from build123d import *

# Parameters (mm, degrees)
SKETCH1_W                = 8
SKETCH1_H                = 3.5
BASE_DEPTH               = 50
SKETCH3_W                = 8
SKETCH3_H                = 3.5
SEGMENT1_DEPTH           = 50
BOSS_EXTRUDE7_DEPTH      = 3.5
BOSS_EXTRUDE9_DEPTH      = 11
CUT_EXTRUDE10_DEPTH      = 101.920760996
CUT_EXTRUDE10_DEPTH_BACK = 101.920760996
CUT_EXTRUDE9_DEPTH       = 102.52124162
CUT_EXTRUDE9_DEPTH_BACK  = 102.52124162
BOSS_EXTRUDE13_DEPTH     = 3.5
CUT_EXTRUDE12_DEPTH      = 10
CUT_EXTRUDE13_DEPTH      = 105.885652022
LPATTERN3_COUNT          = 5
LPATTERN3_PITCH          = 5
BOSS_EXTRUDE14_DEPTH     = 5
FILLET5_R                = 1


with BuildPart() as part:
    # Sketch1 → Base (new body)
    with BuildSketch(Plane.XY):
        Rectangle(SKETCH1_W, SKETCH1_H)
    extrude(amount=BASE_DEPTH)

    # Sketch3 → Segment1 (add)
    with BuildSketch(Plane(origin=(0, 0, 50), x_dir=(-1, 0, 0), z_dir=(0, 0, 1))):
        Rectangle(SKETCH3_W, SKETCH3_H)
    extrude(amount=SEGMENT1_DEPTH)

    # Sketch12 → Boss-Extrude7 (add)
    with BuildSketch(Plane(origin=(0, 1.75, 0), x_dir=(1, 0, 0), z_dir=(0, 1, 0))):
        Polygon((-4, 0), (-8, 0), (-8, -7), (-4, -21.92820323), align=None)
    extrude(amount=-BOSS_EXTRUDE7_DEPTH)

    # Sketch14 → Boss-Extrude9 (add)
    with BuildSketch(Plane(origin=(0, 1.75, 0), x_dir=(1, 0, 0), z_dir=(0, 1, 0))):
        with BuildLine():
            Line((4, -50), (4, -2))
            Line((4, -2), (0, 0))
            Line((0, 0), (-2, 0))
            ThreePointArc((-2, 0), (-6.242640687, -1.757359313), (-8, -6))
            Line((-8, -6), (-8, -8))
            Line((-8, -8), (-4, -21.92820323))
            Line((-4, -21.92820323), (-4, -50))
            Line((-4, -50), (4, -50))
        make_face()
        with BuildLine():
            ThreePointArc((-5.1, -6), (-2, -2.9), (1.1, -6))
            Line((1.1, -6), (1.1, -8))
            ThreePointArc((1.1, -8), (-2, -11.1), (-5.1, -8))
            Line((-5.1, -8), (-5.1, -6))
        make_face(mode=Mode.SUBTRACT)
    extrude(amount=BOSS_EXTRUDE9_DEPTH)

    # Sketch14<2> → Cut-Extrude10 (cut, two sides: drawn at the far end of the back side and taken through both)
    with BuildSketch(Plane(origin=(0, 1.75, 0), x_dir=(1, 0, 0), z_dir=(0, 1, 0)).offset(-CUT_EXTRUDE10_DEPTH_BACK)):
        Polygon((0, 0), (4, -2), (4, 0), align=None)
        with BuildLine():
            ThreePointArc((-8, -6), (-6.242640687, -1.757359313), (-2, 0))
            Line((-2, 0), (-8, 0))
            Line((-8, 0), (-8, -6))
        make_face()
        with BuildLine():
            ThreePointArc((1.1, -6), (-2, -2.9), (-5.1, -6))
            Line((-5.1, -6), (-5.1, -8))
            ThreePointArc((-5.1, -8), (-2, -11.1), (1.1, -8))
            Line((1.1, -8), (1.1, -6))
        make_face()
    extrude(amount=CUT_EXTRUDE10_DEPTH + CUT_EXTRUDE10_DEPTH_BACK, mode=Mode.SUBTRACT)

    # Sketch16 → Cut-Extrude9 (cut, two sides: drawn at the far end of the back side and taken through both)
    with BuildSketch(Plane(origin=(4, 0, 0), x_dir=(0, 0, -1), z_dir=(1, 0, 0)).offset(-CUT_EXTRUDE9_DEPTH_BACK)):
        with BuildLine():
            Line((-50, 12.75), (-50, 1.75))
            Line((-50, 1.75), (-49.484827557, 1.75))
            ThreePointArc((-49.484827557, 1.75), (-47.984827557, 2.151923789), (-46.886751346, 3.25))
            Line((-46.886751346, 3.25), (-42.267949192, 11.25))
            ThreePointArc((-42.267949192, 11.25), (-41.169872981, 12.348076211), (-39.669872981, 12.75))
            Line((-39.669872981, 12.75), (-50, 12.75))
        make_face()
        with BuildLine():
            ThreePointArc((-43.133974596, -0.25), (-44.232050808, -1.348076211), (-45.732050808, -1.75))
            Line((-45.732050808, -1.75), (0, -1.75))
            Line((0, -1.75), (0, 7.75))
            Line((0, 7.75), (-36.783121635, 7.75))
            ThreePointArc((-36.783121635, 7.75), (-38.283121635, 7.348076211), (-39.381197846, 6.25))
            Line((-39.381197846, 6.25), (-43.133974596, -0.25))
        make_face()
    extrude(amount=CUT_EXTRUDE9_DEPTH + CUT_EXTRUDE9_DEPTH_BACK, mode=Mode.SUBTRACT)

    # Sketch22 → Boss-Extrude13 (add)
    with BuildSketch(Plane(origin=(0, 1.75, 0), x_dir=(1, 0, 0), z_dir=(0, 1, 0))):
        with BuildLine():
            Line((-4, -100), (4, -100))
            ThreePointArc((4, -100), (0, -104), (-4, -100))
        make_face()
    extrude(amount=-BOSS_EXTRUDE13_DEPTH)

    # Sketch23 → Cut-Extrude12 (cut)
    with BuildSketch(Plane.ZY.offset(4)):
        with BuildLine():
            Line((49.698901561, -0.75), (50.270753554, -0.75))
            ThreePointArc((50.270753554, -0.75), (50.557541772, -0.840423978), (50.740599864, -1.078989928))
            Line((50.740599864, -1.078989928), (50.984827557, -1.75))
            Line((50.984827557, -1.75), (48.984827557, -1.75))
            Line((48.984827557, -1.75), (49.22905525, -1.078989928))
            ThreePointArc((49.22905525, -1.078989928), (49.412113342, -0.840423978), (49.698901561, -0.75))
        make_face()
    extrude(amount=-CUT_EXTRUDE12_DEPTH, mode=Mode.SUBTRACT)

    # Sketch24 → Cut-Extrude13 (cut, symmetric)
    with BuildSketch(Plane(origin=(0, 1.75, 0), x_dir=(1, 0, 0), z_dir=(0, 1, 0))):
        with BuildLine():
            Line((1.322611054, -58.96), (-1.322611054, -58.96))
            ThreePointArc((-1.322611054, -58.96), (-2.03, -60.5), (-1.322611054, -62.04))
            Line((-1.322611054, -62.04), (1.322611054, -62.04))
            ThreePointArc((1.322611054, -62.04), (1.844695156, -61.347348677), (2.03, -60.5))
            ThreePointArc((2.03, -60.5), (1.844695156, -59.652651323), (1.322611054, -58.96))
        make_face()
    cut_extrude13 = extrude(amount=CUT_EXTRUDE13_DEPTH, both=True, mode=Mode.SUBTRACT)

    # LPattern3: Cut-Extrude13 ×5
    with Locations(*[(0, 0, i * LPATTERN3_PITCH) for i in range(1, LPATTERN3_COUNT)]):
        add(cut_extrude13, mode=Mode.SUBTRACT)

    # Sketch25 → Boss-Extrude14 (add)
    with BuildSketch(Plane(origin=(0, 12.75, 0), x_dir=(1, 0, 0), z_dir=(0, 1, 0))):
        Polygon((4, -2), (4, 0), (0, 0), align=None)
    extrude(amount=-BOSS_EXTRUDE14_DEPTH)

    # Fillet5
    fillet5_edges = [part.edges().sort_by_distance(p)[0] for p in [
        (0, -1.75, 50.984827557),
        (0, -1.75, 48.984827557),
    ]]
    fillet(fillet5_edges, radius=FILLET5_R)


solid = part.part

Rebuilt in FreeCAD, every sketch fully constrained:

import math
import FreeCAD as App
import Part
import Sketcher
from FreeCAD import Vector
Q = App.Units.Quantity


def edges_at(feature, points):
    """Names of the edges that pass closest to the given points."""
    edges = feature.Shape.Edges
    near = lambda p: min(range(len(edges)), key=lambda i: edges[i].distToShape(Part.Vertex(*p))[0])
    return sorted({f"Edge{near(p) + 1}" for p in points})


def add_polygon(sketch, points):
    """Adds a closed chain of lines whose ends are joined by coincident constraints."""
    first, n = sketch.GeometryCount, len(points)
    for a, b in zip(points, points[1:] + points[:1]):
        sketch.addGeometry(Part.LineSegment(App.Vector(*a, 0), App.Vector(*b, 0)), False)
    for i in range(n):
        sketch.addConstraint(Sketcher.Constraint("Coincident", first + i, 2, first + (i + 1) % n, 1))

doc = App.newDocument("Part")
body = doc.addObject("PartDesign::Body", "Body")

# Sketch on XY plane
sketch1 = body.newObject("Sketcher::SketchObject", "Sketch")
sketch1.AttachmentSupport = (doc.getObject("XY_Plane"), [""])
sketch1.MapMode = "FlatFace"
add_polygon(sketch1, [(-4, 1.8), (-4, -1.8), (4, -1.8), (4, 1.8)])  # lines 0-3
sketch1.addConstraint(Sketcher.Constraint("Vertical", 0))
sketch1.addConstraint(Sketcher.Constraint("Horizontal", 1))
sketch1.addConstraint(Sketcher.Constraint("Vertical", 2))
sketch1.addConstraint(Sketcher.Constraint("Horizontal", 3))
sketch1.addConstraint(Sketcher.Constraint("Symmetric", 0, 2, 2, 2, -1, 1))
sketch1.addConstraint(Sketcher.Constraint("DistanceX", 1, 1, 1, 2, 8.0))
sketch1.addConstraint(Sketcher.Constraint("DistanceY", 0, 2, 0, 1, 3.5))
pad1 = body.newObject("PartDesign::Pad", "Pad")
pad1.Profile = sketch1
pad1.Length = 50

# Sketch on XY plane
sketch2 = body.newObject("Sketcher::SketchObject", "Sketch001")
sketch2.AttachmentSupport = (doc.getObject("XY_Plane"), [""])
sketch2.MapMode = "FlatFace"
sketch2.AttachmentOffset = App.Placement(Vector(0, 0, 50), App.Rotation())
add_polygon(sketch2, [(4, -1.8), (4, 1.8), (-4, 1.8), (-4, -1.8)])  # lines 0-3
sketch2.addConstraint(Sketcher.Constraint("Vertical", 0))
sketch2.addConstraint(Sketcher.Constraint("Horizontal", 1))
sketch2.addConstraint(Sketcher.Constraint("Vertical", 2))
sketch2.addConstraint(Sketcher.Constraint("Horizontal", 3))
sketch2.addConstraint(Sketcher.Constraint("Symmetric", 0, 2, 2, 2, -1, 1))
sketch2.addConstraint(Sketcher.Constraint("DistanceX", 1, 2, 1, 1, 8.0))
sketch2.addConstraint(Sketcher.Constraint("DistanceY", 0, 1, 0, 2, 3.5))
pad2 = body.newObject("PartDesign::Pad", "Pad001")
pad2.Profile = sketch2
pad2.Length = 50

# Sketch on XZ plane
sketch3 = body.newObject("Sketcher::SketchObject", "Sketch002")
sketch3.AttachmentSupport = (doc.getObject("XZ_Plane"), [""])
sketch3.MapMode = "FlatFace"
sketch3.AttachmentOffset = App.Placement(Vector(0, 0, -1.75), App.Rotation())
add_polygon(sketch3, [(-4, 0), (-8, 0), (-8, 7), (-4, 21.9)])  # lines 0-3
sketch3.addConstraint(Sketcher.Constraint("Horizontal", 0))
sketch3.addConstraint(Sketcher.Constraint("Vertical", 1))
sketch3.addConstraint(Sketcher.Constraint("Vertical", 3))
sketch3.addConstraint(Sketcher.Constraint("PointOnObject", 0, 2, -1))
sketch3.addConstraint(Sketcher.Constraint("DistanceX", 0, 2, 0, 1, 4.0))
sketch3.addConstraint(Sketcher.Constraint("DistanceY", 1, 1, 1, 2, 7.0))
sketch3.addConstraint(Sketcher.Constraint("Angle", 2, Q("75 deg")))
sketch3.addConstraint(Sketcher.Constraint("DistanceX", 0, 2, -1, 1, 8.0))
pad3 = body.newObject("PartDesign::Pad", "Pad002")
pad3.Profile = sketch3
pad3.Length = 3.5

# Sketch on XZ plane
sketch4 = body.newObject("Sketcher::SketchObject", "Sketch003")
sketch4.AttachmentSupport = (doc.getObject("XZ_Plane"), [""])
sketch4.MapMode = "FlatFace"
sketch4.AttachmentOffset = App.Placement(Vector(0, 0, -1.75), App.Rotation())
sketch4.addGeometry(Part.LineSegment(Vector(4, 50, 0), Vector(4, 2, 0)), False)
sketch4.addGeometry(Part.LineSegment(Vector(4, 2, 0), Vector(0, 0, 0)), False)
sketch4.addGeometry(Part.LineSegment(Vector(0, 0, 0), Vector(-2, 0, 0)), False)
sketch4.addGeometry(Part.ArcOfCircle(Part.Circle(Vector(-2, 6, 0), Vector(0, 0, 1), 6), math.radians(180), math.radians(270)), False)
sketch4.addGeometry(Part.LineSegment(Vector(-8, 6, 0), Vector(-8, 8, 0)), False)
sketch4.addGeometry(Part.LineSegment(Vector(-8, 8, 0), Vector(-4, 21.9, 0)), False)
sketch4.addGeometry(Part.LineSegment(Vector(-4, 21.9, 0), Vector(-4, 50, 0)), False)
sketch4.addGeometry(Part.LineSegment(Vector(-4, 50, 0), Vector(4, 50, 0)), False)
sketch4.addGeometry(Part.LineSegment(Vector(-5.1, 8, 0), Vector(-5.1, 6, 0)), False)
sketch4.addGeometry(Part.ArcOfCircle(Part.Circle(Vector(-2, 6, 0), Vector(0, 0, 1), 3.1), math.radians(180), math.radians(360)), False)
sketch4.addGeometry(Part.LineSegment(Vector(1.1, 6, 0), Vector(1.1, 8, 0)), False)
sketch4.addGeometry(Part.ArcOfCircle(Part.Circle(Vector(-2, 8, 0), Vector(0, 0, 1), 3.1), math.radians(0), math.radians(180)), False)
sketch4.addConstraint(Sketcher.Constraint("Coincident", 0, 2, 1, 1))
sketch4.addConstraint(Sketcher.Constraint("Coincident", 1, 2, 2, 1))
sketch4.addConstraint(Sketcher.Constraint("Tangent", 2, 2, 3, 2))
sketch4.addConstraint(Sketcher.Constraint("Tangent", 3, 1, 4, 1))
sketch4.addConstraint(Sketcher.Constraint("Coincident", 4, 2, 5, 1))
sketch4.addConstraint(Sketcher.Constraint("Coincident", 5, 2, 6, 1))
sketch4.addConstraint(Sketcher.Constraint("Coincident", 6, 2, 7, 1))
sketch4.addConstraint(Sketcher.Constraint("Coincident", 7, 2, 0, 1))
sketch4.addConstraint(Sketcher.Constraint("Tangent", 8, 2, 9, 1))
sketch4.addConstraint(Sketcher.Constraint("Tangent", 9, 2, 10, 1))
sketch4.addConstraint(Sketcher.Constraint("Tangent", 10, 2, 11, 1))
sketch4.addConstraint(Sketcher.Constraint("Tangent", 11, 2, 8, 1))
sketch4.addConstraint(Sketcher.Constraint("Vertical", 0))
sketch4.addConstraint(Sketcher.Constraint("Horizontal", 2))
sketch4.addConstraint(Sketcher.Constraint("Vertical", 4))
sketch4.addConstraint(Sketcher.Constraint("Vertical", 6))
sketch4.addConstraint(Sketcher.Constraint("Horizontal", 7))
sketch4.addConstraint(Sketcher.Constraint("Vertical", 8))
sketch4.addConstraint(Sketcher.Constraint("Vertical", 10))
sketch4.addConstraint(Sketcher.Constraint("Coincident", 1, 2, -1, 1))
sketch4.addConstraint(Sketcher.Constraint("Coincident", 9, 3, 3, 3))
sketch4.addConstraint(Sketcher.Constraint("Horizontal", 11, 3, 4, 2))
sketch4.addConstraint(Sketcher.Constraint("Equal", 2, 4))
sketch4.addConstraint(Sketcher.Constraint("Radius", 3, 6.0))
sketch4.addConstraint(Sketcher.Constraint("Radius", 9, 3.1))
sketch4.addConstraint(Sketcher.Constraint("DistanceX", 2, 2, 2, 1, 2.0))
sketch4.addConstraint(Sketcher.Constraint("DistanceX", 7, 1, 7, 2, 8.0))
sketch4.addConstraint(Sketcher.Constraint("DistanceY", 0, 2, 0, 1, 48.0))
sketch4.addConstraint(Sketcher.Constraint("DistanceX", -1, 1, 0, 2, 4.0))
sketch4.addConstraint(Sketcher.Constraint("DistanceY", -1, 1, 0, 2, 2.0))
sketch4.addConstraint(Sketcher.Constraint("Distance", 5, 14.491199))
pad4 = body.newObject("PartDesign::Pad", "Pad003")
pad4.Profile = sketch4
pad4.Length = 11
pad4.Reversed = True

# Sketch on XZ plane
sketch5 = body.newObject("Sketcher::SketchObject", "Sketch004")
sketch5.AttachmentSupport = (doc.getObject("XZ_Plane"), [""])
sketch5.MapMode = "FlatFace"
sketch5.AttachmentOffset = App.Placement(Vector(0, 0, -1.75), App.Rotation())
add_polygon(sketch5, [(0, 0), (4, 2), (4, 0)])  # lines 0-2
sketch5.addGeometry(Part.ArcOfCircle(Part.Circle(Vector(-2, 6, 0), Vector(0, 0, 1), 6), math.radians(180), math.radians(270)), False)  # 3
sketch5.addGeometry(Part.LineSegment(Vector(-2, 0, 0), Vector(-8, 0, 0)), False)  # 4
sketch5.addGeometry(Part.LineSegment(Vector(-8, 0, 0), Vector(-8, 6, 0)), False)  # 5
sketch5.addGeometry(Part.ArcOfCircle(Part.Circle(Vector(-2, 6, 0), Vector(0, 0, 1), 3.1), math.radians(180), math.radians(360)), False)  # 6
sketch5.addGeometry(Part.LineSegment(Vector(-5.1, 6, 0), Vector(-5.1, 8, 0)), False)  # 7
sketch5.addGeometry(Part.ArcOfCircle(Part.Circle(Vector(-2, 8, 0), Vector(0, 0, 1), 3.1), math.radians(0), math.radians(180)), False)  # 8
sketch5.addGeometry(Part.LineSegment(Vector(1.1, 8, 0), Vector(1.1, 6, 0)), False)  # 9
sketch5.addConstraint(Sketcher.Constraint("Tangent", 3, 2, 4, 1))
sketch5.addConstraint(Sketcher.Constraint("Coincident", 4, 2, 5, 1))
sketch5.addConstraint(Sketcher.Constraint("Tangent", 5, 2, 3, 1))
sketch5.addConstraint(Sketcher.Constraint("Tangent", 6, 1, 7, 1))
sketch5.addConstraint(Sketcher.Constraint("Tangent", 7, 2, 8, 2))
sketch5.addConstraint(Sketcher.Constraint("Tangent", 8, 1, 9, 1))
sketch5.addConstraint(Sketcher.Constraint("Tangent", 9, 2, 6, 2))
sketch5.addConstraint(Sketcher.Constraint("Vertical", 1))
sketch5.addConstraint(Sketcher.Constraint("Horizontal", 2))
sketch5.addConstraint(Sketcher.Constraint("Horizontal", 4))
sketch5.addConstraint(Sketcher.Constraint("Vertical", 5))
sketch5.addConstraint(Sketcher.Constraint("Vertical", 7))
sketch5.addConstraint(Sketcher.Constraint("Vertical", 9))
sketch5.addConstraint(Sketcher.Constraint("Coincident", 2, 2, -1, 1))
sketch5.addConstraint(Sketcher.Constraint("Coincident", 6, 3, 3, 3))
sketch5.addConstraint(Sketcher.Constraint("PointOnObject", 3, 2, -1))
sketch5.addConstraint(Sketcher.Constraint("Equal", 1, 7))
sketch5.addConstraint(Sketcher.Constraint("Radius", 3, 6.0))
sketch5.addConstraint(Sketcher.Constraint("Radius", 6, 3.1))
sketch5.addConstraint(Sketcher.Constraint("DistanceX", 2, 2, 2, 1, 4.0))
sketch5.addConstraint(Sketcher.Constraint("DistanceY", 1, 2, 1, 1, 2.0))
sketch5.addConstraint(Sketcher.Constraint("DistanceX", 3, 3, -1, 1, 2.0))
pocket1 = body.newObject("PartDesign::Pocket", "Pocket")
pocket1.Profile = sketch5
pocket1.Type = "ThroughAll"
pocket1.Midplane = True

# Sketch on YZ plane
sketch6 = body.newObject("Sketcher::SketchObject", "Sketch005")
sketch6.AttachmentSupport = (doc.getObject("YZ_Plane"), [""])
sketch6.MapMode = "FlatFace"
sketch6.AttachmentOffset = App.Placement(Vector(0, 0, 4), App.Rotation())
sketch6.addGeometry(Part.LineSegment(Vector(12.8, 50, 0), Vector(1.8, 50, 0)), False)
sketch6.addGeometry(Part.LineSegment(Vector(1.8, 50, 0), Vector(1.8, 49.5, 0)), False)
sketch6.addGeometry(Part.ArcOfCircle(Part.Circle(Vector(4.8, 49.5, 0), Vector(0, 0, 1), 3), math.radians(-180), math.radians(-120)), False)
sketch6.addGeometry(Part.LineSegment(Vector(3.2, 46.9, 0), Vector(11.2, 42.3, 0)), False)
sketch6.addGeometry(Part.ArcOfCircle(Part.Circle(Vector(9.7, 39.7, 0), Vector(0, 0, 1), 3), math.radians(0), math.radians(60)), False)
sketch6.addGeometry(Part.LineSegment(Vector(12.8, 39.7, 0), Vector(12.8, 50, 0)), False)
sketch6.addGeometry(Part.ArcOfCircle(Part.Circle(Vector(1.3, 45.7, 0), Vector(0, 0, 1), 3), math.radians(-180), math.radians(-120)), False)
sketch6.addGeometry(Part.LineSegment(Vector(-1.8, 45.7, 0), Vector(-1.8, 0, 0)), False)
sketch6.addGeometry(Part.LineSegment(Vector(-1.8, 0, 0), Vector(7.8, 0, 0)), False)
sketch6.addGeometry(Part.LineSegment(Vector(7.8, 0, 0), Vector(7.8, 36.8, 0)), False)
sketch6.addGeometry(Part.ArcOfCircle(Part.Circle(Vector(4.7, 36.8, 0), Vector(0, 0, 1), 3), math.radians(0), math.radians(60)), False)
sketch6.addGeometry(Part.LineSegment(Vector(6.2, 39.4, 0), Vector(-0.2, 43.1, 0)), False)
sketch6.addConstraint(Sketcher.Constraint("Coincident", 0, 2, 1, 1))
sketch6.addConstraint(Sketcher.Constraint("Tangent", 1, 2, 2, 1))
sketch6.addConstraint(Sketcher.Constraint("Tangent", 2, 2, 3, 1))
sketch6.addConstraint(Sketcher.Constraint("Tangent", 3, 2, 4, 2))
sketch6.addConstraint(Sketcher.Constraint("Tangent", 4, 1, 5, 1))
sketch6.addConstraint(Sketcher.Constraint("Coincident", 5, 2, 0, 1))
sketch6.addConstraint(Sketcher.Constraint("Tangent", 6, 1, 7, 1))
sketch6.addConstraint(Sketcher.Constraint("Coincident", 7, 2, 8, 1))
sketch6.addConstraint(Sketcher.Constraint("Coincident", 8, 2, 9, 1))
sketch6.addConstraint(Sketcher.Constraint("Tangent", 9, 2, 10, 1))
sketch6.addConstraint(Sketcher.Constraint("Tangent", 10, 2, 11, 1))
sketch6.addConstraint(Sketcher.Constraint("Tangent", 11, 2, 6, 2))
sketch6.addConstraint(Sketcher.Constraint("Horizontal", 0))
sketch6.addConstraint(Sketcher.Constraint("Vertical", 1))
sketch6.addConstraint(Sketcher.Constraint("Vertical", 5))
sketch6.addConstraint(Sketcher.Constraint("Vertical", 7))
sketch6.addConstraint(Sketcher.Constraint("Horizontal", 8))
sketch6.addConstraint(Sketcher.Constraint("Vertical", 9))
sketch6.addConstraint(Sketcher.Constraint("Equal", 2, 4))
sketch6.addConstraint(Sketcher.Constraint("Equal", 4, 6))
sketch6.addConstraint(Sketcher.Constraint("Equal", 6, 10))
sketch6.addConstraint(Sketcher.Constraint("PointOnObject", 7, 2, -1))
sketch6.addConstraint(Sketcher.Constraint("Parallel", 3, 11))
sketch6.addConstraint(Sketcher.Constraint("Vertical", 2, 3, 10, 3))
sketch6.addConstraint(Sketcher.Constraint("Radius", 2, 3.0))
sketch6.addConstraint(Sketcher.Constraint("DistanceX", 0, 2, 0, 1, 11.0))
sketch6.addConstraint(Sketcher.Constraint("Angle", 3, Q("-30 deg")))
sketch6.addConstraint(Sketcher.Constraint("DistanceX", 8, 1, 8, 2, 9.5))
sketch6.addConstraint(Sketcher.Constraint("DistanceY", -1, 1, 0, 2, 50.0))
sketch6.addConstraint(Sketcher.Constraint("DistanceX", -1, 1, 2, 3, 4.75))
sketch6.addConstraint(Sketcher.Constraint("DistanceY", 7, 2, 7, 1, 45.732051))
sketch6.addConstraint(Sketcher.Constraint("DistanceY", 6, 3, 2, 2, 1.154701))
pocket2 = body.newObject("PartDesign::Pocket", "Pocket001")
pocket2.Profile = sketch6
pocket2.Type = "ThroughAll"
pocket2.Midplane = True

# Sketch on XZ plane
sketch7 = body.newObject("Sketcher::SketchObject", "Sketch006")
sketch7.AttachmentSupport = (doc.getObject("XZ_Plane"), [""])
sketch7.MapMode = "FlatFace"
sketch7.AttachmentOffset = App.Placement(Vector(0, 0, -1.75), App.Rotation())
sketch7.addGeometry(Part.LineSegment(Vector(4, 100, 0), Vector(-4, 100, 0)), False)
sketch7.addGeometry(Part.ArcOfCircle(Part.Circle(Vector(0, 100, 0), Vector(0, 0, 1), 4), math.radians(0), math.radians(180)), False)
sketch7.addConstraint(Sketcher.Constraint("Coincident", 0, 1, 1, 1))
sketch7.addConstraint(Sketcher.Constraint("Coincident", 1, 2, 0, 2))
sketch7.addConstraint(Sketcher.Constraint("Horizontal", 0))
sketch7.addConstraint(Sketcher.Constraint("PointOnObject", 1, 3, -2))
sketch7.addConstraint(Sketcher.Constraint("Horizontal", 1, 3, 0, 1))
sketch7.addConstraint(Sketcher.Constraint("Radius", 1, 4.0))
sketch7.addConstraint(Sketcher.Constraint("DistanceY", -1, 1, 1, 3, 100.0))
pad5 = body.newObject("PartDesign::Pad", "Pad004")
pad5.Profile = sketch7
pad5.Length = 3.5

# Sketch on YZ plane
sketch8 = body.newObject("Sketcher::SketchObject", "Sketch007")
sketch8.AttachmentSupport = (doc.getObject("YZ_Plane"), [""])
sketch8.MapMode = "FlatFace"
sketch8.AttachmentOffset = App.Placement(Vector(0, 0, -4), App.Rotation())
sketch8.addGeometry(Part.LineSegment(Vector(-0.8, 50.3, 0), Vector(-0.8, 49.7, 0)), False)
sketch8.addGeometry(Part.ArcOfCircle(Part.Circle(Vector(-1.2, 49.7, 0), Vector(0, 0, 1), 0.5), math.radians(-70), math.radians(0)), False)
sketch8.addGeometry(Part.LineSegment(Vector(-1.1, 49.2, 0), Vector(-1.8, 49, 0)), False)
sketch8.addGeometry(Part.LineSegment(Vector(-1.8, 49, 0), Vector(-1.8, 51, 0)), False)
sketch8.addGeometry(Part.LineSegment(Vector(-1.8, 51, 0), Vector(-1.1, 50.7, 0)), False)
sketch8.addGeometry(Part.ArcOfCircle(Part.Circle(Vector(-1.2, 50.3, 0), Vector(0, 0, 1), 0.5), math.radians(0), math.radians(70)), False)
sketch8.addConstraint(Sketcher.Constraint("Tangent", 0, 2, 1, 2))
sketch8.addConstraint(Sketcher.Constraint("Tangent", 1, 1, 2, 1))
sketch8.addConstraint(Sketcher.Constraint("Coincident", 2, 2, 3, 1))
sketch8.addConstraint(Sketcher.Constraint("Coincident", 3, 2, 4, 1))
sketch8.addConstraint(Sketcher.Constraint("Tangent", 4, 2, 5, 2))
sketch8.addConstraint(Sketcher.Constraint("Tangent", 5, 1, 0, 1))
sketch8.addConstraint(Sketcher.Constraint("Vertical", 0))
sketch8.addConstraint(Sketcher.Constraint("Vertical", 3))
sketch8.addConstraint(Sketcher.Constraint("Equal", 1, 5))
sketch8.addConstraint(Sketcher.Constraint("Vertical", 1, 1, 4, 2))
sketch8.addConstraint(Sketcher.Constraint("Radius", 1, 0.5))
sketch8.addConstraint(Sketcher.Constraint("DistanceY", 3, 1, 3, 2, 2.0))
sketch8.addConstraint(Sketcher.Constraint("Angle", 2, Q("-160 deg")))
sketch8.addConstraint(Sketcher.Constraint("DistanceX", 2, 2, 0, 2, 1.0))
sketch8.addConstraint(Sketcher.Constraint("DistanceX", 1, 3, -1, 1, 1.25))
sketch8.addConstraint(Sketcher.Constraint("DistanceY", -1, 1, 1, 3, 49.698902))
pocket3 = body.newObject("PartDesign::Pocket", "Pocket002")
pocket3.Profile = sketch8
pocket3.Length = 10
pocket3.Reversed = True

# Sketch on XZ plane
sketch9 = body.newObject("Sketcher::SketchObject", "Sketch008")
sketch9.AttachmentSupport = (doc.getObject("XZ_Plane"), [""])
sketch9.MapMode = "FlatFace"
sketch9.AttachmentOffset = App.Placement(Vector(0, 0, -1.75), App.Rotation())
sketch9.addGeometry(Part.LineSegment(Vector(1.3, 59, 0), Vector(-1.3, 59, 0)), False)
sketch9.addGeometry(Part.ArcOfCircle(Part.Circle(Vector(0, 60.5, 0), Vector(0, 0, 1), 2), math.radians(131), math.radians(229)), False)
sketch9.addGeometry(Part.LineSegment(Vector(-1.3, 62, 0), Vector(1.3, 62, 0)), False)
sketch9.addGeometry(Part.ArcOfCircle(Part.Circle(Vector(0, 60.5, 0), Vector(0, 0, 1), 2), math.radians(0), math.radians(49)), False)
sketch9.addGeometry(Part.ArcOfCircle(Part.Circle(Vector(0, 60.5, 0), Vector(0, 0, 1), 2), math.radians(-49), math.radians(0)), False)
sketch9.addConstraint(Sketcher.Constraint("Coincident", 0, 2, 1, 2))
sketch9.addConstraint(Sketcher.Constraint("Coincident", 1, 1, 2, 1))
sketch9.addConstraint(Sketcher.Constraint("Coincident", 2, 2, 3, 2))
sketch9.addConstraint(Sketcher.Constraint("Tangent", 3, 1, 4, 2))
sketch9.addConstraint(Sketcher.Constraint("Coincident", 4, 1, 0, 1))
sketch9.addConstraint(Sketcher.Constraint("Horizontal", 0))
sketch9.addConstraint(Sketcher.Constraint("Horizontal", 2))
sketch9.addConstraint(Sketcher.Constraint("Coincident", 3, 3, 1, 3))
sketch9.addConstraint(Sketcher.Constraint("Equal", 1, 3))
sketch9.addConstraint(Sketcher.Constraint("Equal", 3, 4))
sketch9.addConstraint(Sketcher.Constraint("PointOnObject", 1, 3, -2))
sketch9.addConstraint(Sketcher.Constraint("Horizontal", 4, 3, 3, 1))
sketch9.addConstraint(Sketcher.Constraint("Vertical", 0, 2, 1, 1))
sketch9.addConstraint(Sketcher.Constraint("Radius", 1, 2.03))
sketch9.addConstraint(Sketcher.Constraint("DistanceY", -1, 1, 1, 3, 60.5))
sketch9.addConstraint(Sketcher.Constraint("DistanceY", -1, 1, 0, 2, 58.96))
pocket4 = body.newObject("PartDesign::Pocket", "Pocket003")
pocket4.Profile = sketch9
pocket4.Length = 211.771304
pocket4.Midplane = True
doc.recompute()

linearpattern = body.newObject("PartDesign::LinearPattern", "LinearPattern")
linearpattern.Originals = [pocket4]
linearpattern.Direction = (doc.getObject("Z_Axis"), [""])
linearpattern.Mode = "offset"
linearpattern.Offset = 5
linearpattern.Occurrences = 5
body.Tip = linearpattern

# Sketch on XZ plane
sketch10 = body.newObject("Sketcher::SketchObject", "Sketch009")
sketch10.AttachmentSupport = (doc.getObject("XZ_Plane"), [""])
sketch10.MapMode = "FlatFace"
sketch10.AttachmentOffset = App.Placement(Vector(0, 0, -12.75), App.Rotation())
add_polygon(sketch10, [(4, 2), (4, 0), (0, 0)])  # lines 0-2
sketch10.addConstraint(Sketcher.Constraint("Vertical", 0))
sketch10.addConstraint(Sketcher.Constraint("Horizontal", 1))
sketch10.addConstraint(Sketcher.Constraint("Coincident", 1, 2, -1, 1))
sketch10.addConstraint(Sketcher.Constraint("DistanceX", 1, 2, 1, 1, 4.0))
sketch10.addConstraint(Sketcher.Constraint("DistanceY", 0, 2, 0, 1, 2.0))
pad6 = body.newObject("PartDesign::Pad", "Pad005")
pad6.Profile = sketch10
pad6.Length = 5
doc.recompute()

fillet = body.newObject("PartDesign::Fillet", "Fillet")
fillet.Base = (pad6, edges_at(pad6, [(0, -1.75, 50.985), (0, -1.75, 48.985)]))
fillet.Radius = 1

doc.recompute()
